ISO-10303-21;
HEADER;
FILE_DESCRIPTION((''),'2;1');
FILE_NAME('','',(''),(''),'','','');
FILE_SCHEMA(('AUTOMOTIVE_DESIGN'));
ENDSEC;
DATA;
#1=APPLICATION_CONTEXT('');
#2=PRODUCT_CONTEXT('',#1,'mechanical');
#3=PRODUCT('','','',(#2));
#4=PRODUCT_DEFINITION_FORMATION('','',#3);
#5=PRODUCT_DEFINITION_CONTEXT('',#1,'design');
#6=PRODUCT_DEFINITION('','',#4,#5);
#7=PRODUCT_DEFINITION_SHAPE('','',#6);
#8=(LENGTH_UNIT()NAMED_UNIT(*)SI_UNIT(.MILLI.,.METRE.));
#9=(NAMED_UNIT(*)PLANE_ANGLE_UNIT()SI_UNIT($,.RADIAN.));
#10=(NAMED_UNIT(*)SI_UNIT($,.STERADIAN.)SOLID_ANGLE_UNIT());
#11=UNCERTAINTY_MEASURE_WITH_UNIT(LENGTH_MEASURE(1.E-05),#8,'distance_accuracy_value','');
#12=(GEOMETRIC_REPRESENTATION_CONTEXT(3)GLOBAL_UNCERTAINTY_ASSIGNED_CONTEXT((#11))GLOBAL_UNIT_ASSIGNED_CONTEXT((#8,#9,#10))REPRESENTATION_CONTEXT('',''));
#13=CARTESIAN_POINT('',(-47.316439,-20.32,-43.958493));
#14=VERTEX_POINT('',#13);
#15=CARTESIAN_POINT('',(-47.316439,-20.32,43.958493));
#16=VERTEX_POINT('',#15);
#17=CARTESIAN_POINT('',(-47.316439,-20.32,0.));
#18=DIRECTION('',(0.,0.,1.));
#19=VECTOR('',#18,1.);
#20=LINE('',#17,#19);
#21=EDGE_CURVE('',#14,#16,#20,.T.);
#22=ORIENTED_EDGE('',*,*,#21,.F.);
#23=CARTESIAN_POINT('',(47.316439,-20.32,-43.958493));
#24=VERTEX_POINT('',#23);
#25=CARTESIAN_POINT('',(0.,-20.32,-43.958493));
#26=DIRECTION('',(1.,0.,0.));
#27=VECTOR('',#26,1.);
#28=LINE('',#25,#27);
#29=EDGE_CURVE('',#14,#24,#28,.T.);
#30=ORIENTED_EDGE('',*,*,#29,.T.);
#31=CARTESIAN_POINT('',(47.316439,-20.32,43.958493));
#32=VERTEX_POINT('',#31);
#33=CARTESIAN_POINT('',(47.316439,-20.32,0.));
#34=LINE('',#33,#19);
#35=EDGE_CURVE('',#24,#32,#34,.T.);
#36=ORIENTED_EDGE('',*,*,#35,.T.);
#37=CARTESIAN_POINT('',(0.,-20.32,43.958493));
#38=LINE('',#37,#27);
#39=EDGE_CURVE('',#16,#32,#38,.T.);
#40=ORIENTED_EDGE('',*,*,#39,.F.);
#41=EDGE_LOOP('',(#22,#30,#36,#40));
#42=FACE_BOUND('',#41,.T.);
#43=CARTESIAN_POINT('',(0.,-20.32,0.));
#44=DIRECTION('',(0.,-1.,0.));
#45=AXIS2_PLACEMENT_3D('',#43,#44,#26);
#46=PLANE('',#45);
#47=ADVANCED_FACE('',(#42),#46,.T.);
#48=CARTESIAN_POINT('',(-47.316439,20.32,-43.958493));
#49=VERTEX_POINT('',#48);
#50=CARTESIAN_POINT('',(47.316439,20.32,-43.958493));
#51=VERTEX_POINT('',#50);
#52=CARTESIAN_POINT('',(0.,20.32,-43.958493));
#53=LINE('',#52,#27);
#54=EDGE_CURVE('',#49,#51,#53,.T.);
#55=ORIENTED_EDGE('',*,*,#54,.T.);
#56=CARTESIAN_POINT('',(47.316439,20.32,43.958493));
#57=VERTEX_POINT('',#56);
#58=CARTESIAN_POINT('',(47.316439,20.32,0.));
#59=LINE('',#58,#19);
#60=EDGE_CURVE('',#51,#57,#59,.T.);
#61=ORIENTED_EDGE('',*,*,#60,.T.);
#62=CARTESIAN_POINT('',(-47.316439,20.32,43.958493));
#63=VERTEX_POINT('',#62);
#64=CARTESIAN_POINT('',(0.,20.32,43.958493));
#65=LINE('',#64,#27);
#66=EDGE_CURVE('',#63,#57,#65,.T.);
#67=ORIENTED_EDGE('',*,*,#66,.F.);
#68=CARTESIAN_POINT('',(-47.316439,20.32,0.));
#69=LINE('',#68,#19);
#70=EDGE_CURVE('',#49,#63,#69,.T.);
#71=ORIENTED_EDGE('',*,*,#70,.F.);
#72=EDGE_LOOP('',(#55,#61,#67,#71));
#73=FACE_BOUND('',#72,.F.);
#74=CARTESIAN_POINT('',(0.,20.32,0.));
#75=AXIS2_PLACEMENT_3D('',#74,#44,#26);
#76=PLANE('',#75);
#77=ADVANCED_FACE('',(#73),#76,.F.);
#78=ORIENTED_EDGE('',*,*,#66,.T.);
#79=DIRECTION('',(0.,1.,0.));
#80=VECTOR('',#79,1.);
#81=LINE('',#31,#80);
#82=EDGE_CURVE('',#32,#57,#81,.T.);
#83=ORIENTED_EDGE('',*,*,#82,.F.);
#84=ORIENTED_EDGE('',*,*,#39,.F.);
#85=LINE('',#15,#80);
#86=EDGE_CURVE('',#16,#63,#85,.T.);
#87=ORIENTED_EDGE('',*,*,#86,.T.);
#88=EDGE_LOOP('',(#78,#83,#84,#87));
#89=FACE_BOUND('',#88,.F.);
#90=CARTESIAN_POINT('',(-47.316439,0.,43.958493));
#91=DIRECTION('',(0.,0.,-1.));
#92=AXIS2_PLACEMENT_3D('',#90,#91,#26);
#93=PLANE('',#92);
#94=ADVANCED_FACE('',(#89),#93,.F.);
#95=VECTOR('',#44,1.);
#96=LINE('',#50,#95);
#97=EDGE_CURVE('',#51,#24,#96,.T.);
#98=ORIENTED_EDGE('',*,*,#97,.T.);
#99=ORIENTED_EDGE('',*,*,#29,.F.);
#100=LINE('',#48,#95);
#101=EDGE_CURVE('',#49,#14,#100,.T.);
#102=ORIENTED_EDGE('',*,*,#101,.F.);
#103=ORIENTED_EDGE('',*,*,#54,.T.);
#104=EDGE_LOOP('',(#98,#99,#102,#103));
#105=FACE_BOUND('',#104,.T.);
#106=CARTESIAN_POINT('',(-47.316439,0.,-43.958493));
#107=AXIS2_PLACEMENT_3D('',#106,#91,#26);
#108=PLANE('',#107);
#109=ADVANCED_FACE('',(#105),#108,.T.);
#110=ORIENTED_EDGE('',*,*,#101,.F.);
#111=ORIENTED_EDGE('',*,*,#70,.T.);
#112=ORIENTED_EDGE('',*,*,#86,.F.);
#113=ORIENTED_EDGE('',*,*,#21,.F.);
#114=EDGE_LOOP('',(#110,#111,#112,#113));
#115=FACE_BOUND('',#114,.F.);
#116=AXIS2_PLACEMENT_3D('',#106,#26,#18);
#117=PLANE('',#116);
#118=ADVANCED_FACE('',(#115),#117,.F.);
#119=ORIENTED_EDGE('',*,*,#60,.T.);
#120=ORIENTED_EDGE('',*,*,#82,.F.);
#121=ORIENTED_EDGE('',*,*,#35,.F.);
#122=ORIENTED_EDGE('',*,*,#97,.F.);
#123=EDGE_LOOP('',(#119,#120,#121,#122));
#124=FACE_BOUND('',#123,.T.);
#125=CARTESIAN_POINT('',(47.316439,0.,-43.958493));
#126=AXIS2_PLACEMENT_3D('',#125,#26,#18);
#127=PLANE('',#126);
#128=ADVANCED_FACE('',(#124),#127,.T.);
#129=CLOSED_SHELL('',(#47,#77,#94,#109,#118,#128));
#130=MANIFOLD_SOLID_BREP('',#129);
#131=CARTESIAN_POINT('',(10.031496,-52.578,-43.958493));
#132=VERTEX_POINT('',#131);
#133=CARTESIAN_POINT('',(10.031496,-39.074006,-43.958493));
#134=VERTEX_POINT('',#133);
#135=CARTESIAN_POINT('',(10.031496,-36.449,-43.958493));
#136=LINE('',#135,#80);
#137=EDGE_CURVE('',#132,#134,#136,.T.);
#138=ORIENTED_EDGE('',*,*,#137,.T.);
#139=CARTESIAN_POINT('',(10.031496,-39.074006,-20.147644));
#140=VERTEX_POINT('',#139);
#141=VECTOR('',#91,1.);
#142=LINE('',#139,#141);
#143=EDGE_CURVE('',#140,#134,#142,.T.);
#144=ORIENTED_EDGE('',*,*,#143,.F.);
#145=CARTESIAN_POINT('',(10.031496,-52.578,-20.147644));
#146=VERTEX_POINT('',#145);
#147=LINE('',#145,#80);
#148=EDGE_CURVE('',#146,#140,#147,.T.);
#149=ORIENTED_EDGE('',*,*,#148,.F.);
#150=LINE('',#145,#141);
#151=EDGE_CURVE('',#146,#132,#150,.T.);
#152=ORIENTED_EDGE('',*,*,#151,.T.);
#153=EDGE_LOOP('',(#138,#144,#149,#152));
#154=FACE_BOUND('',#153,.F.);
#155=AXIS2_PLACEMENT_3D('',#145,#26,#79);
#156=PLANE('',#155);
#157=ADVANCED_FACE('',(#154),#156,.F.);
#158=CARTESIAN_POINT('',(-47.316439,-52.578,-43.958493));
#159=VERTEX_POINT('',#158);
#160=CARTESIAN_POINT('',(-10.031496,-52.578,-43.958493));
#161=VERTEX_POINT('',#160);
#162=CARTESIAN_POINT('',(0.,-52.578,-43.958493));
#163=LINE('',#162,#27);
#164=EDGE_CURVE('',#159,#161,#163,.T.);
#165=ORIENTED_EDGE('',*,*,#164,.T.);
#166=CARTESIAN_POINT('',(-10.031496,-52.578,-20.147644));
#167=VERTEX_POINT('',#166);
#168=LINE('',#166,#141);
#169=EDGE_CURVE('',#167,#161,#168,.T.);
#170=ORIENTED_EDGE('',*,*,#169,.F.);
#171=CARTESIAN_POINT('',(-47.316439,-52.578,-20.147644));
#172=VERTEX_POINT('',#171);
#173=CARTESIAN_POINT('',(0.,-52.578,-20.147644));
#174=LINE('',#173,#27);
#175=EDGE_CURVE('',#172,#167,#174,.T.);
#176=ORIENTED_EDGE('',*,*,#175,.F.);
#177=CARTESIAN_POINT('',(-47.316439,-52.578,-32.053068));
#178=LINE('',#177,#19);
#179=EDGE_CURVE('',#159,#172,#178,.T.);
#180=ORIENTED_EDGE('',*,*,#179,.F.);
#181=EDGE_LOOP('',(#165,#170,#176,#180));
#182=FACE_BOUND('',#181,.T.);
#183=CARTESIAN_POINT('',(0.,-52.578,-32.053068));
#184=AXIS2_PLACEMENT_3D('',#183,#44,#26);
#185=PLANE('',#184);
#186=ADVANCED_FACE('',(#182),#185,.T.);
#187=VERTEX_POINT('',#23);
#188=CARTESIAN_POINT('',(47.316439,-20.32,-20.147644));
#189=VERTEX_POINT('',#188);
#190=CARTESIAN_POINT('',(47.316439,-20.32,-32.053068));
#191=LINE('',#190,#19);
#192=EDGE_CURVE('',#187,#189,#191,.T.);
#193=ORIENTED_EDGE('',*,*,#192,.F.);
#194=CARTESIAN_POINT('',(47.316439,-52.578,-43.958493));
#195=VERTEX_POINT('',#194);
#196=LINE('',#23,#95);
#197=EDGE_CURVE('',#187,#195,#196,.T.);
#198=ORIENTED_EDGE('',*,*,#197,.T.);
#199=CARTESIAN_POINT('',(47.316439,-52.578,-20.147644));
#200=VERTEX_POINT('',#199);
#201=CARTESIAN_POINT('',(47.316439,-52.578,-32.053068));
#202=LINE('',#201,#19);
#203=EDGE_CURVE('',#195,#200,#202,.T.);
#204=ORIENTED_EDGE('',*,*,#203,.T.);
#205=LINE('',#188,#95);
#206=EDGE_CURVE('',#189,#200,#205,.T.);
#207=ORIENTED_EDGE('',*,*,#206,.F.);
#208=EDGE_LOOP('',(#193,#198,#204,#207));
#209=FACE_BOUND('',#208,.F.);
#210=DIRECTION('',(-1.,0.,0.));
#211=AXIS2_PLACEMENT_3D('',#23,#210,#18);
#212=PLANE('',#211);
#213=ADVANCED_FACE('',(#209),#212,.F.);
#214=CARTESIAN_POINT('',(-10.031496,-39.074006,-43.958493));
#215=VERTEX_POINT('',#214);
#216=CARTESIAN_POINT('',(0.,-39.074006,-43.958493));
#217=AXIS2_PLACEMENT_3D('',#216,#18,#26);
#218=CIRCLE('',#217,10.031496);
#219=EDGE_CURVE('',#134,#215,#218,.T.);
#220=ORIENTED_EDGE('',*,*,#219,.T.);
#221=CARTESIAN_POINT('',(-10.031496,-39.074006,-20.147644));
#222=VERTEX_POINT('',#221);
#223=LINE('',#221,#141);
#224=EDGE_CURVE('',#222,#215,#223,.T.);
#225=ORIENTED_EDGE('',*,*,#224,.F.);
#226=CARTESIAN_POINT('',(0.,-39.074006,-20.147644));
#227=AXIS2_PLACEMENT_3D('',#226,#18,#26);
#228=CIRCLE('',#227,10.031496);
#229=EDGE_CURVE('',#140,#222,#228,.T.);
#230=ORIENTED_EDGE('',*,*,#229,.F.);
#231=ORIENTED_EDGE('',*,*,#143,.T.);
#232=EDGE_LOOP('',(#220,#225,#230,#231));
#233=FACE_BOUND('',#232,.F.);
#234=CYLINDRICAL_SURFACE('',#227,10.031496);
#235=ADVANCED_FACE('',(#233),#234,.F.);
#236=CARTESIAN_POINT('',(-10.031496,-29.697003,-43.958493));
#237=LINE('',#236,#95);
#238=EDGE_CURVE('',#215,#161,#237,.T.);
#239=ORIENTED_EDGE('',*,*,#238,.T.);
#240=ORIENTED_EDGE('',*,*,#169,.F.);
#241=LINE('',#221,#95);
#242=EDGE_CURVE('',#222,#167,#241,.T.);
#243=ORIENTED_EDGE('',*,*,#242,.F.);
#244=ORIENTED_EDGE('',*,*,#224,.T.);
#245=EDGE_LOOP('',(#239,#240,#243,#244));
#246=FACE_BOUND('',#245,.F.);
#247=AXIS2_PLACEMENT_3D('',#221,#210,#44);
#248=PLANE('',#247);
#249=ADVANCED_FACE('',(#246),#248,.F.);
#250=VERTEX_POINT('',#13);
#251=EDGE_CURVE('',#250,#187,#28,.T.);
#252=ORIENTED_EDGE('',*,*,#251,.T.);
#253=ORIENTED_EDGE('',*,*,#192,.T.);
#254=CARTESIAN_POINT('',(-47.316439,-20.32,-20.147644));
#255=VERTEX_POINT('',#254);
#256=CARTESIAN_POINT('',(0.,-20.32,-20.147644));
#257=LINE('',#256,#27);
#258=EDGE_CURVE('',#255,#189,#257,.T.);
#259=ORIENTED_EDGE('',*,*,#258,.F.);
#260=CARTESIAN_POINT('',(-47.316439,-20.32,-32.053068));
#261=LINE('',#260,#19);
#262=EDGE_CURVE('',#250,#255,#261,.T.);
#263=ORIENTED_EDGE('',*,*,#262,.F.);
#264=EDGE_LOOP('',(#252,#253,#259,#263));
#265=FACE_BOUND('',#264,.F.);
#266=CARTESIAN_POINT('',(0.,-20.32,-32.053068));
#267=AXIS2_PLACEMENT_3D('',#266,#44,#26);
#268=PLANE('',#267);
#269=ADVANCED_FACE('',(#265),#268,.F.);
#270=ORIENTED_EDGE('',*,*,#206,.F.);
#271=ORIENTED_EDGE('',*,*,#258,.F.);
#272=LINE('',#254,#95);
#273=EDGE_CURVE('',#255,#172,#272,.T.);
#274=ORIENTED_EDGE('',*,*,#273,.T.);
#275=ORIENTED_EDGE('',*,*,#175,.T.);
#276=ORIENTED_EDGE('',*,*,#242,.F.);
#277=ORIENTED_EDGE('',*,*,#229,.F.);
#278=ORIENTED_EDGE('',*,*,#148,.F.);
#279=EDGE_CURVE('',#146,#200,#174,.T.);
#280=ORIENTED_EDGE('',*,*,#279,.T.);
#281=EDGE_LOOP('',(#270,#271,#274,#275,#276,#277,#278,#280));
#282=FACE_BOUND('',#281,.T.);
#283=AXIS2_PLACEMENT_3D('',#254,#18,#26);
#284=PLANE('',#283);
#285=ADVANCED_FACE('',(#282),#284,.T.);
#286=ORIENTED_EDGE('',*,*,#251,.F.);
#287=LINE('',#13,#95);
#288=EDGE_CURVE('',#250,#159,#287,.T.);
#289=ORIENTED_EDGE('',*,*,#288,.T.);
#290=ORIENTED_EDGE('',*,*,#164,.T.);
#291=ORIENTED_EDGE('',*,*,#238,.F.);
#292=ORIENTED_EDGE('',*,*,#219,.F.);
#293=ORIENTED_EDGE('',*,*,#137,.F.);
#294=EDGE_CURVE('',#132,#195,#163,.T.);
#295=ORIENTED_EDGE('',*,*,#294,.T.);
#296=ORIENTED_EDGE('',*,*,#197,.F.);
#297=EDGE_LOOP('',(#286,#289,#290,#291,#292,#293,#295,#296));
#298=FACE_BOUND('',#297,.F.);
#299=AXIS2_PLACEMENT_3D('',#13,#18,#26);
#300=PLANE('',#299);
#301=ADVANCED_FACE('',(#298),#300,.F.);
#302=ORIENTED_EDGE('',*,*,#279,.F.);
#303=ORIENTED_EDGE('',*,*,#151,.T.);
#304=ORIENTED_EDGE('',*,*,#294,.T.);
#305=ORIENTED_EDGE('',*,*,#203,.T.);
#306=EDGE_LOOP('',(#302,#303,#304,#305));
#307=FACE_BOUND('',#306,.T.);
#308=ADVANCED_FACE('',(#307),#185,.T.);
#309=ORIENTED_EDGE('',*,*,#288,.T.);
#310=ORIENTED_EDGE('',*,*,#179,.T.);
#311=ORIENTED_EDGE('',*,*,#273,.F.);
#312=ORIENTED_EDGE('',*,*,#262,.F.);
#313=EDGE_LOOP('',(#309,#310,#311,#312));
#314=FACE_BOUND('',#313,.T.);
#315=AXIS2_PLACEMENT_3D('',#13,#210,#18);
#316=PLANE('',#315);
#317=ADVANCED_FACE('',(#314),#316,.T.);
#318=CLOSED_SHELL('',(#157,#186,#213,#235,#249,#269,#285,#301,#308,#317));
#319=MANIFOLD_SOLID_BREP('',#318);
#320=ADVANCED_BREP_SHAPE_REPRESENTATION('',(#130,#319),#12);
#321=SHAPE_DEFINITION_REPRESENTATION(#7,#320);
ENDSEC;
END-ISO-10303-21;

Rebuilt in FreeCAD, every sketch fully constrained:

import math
import FreeCAD as App
import Part
import Sketcher
from FreeCAD import Vector
Q = App.Units.Quantity


def add_polygon(sketch, points):
    """Adds a closed chain of lines whose ends are joined by coincident constraints."""
    first, n = sketch.GeometryCount, len(points)
    for a, b in zip(points, points[1:] + points[:1]):
        sketch.addGeometry(Part.LineSegment(App.Vector(*a, 0), App.Vector(*b, 0)), False)
    for i in range(n):
        sketch.addConstraint(Sketcher.Constraint("Coincident", first + i, 2, first + (i + 1) % n, 1))

doc = App.newDocument("Part")
body = doc.addObject("PartDesign::Body", "Body")

# Sketch on XZ plane
sketch1 = doc.addObject("Sketcher::SketchObject", "Sketch")
body.addObject(sketch1)
sketch1.AttachmentSupport = (doc.XZ_Plane, [""])
sketch1.MapMode = "FlatFace"
add_polygon(sketch1, [(-47, 44), (-47, -44), (47, -44), (47, 44)])  # lines 0-3
sketch1.addConstraint([
    Sketcher.Constraint("Vertical", 0),
    Sketcher.Constraint("Horizontal", 1),
    Sketcher.Constraint("Vertical", 2),
    Sketcher.Constraint("Horizontal", 3),
    Sketcher.Constraint("Symmetric", 0, 2, 2, 2, -1, 1),
    Sketcher.Constraint("DistanceX", 1, 1, 1, 2, 94.632879),
    Sketcher.Constraint("DistanceY", 0, 2, 0, 1, 87.916985),
])
pad1 = doc.addObject("PartDesign::Pad", "Pad")
body.addObject(pad1)
pad1.Profile = sketch1
pad1.Length = Q("1.6 in")
pad1.Midplane = True
body2 = doc.addObject("PartDesign::Body", "Body001")

# Sketch on XZ plane
sketch2 = doc.addObject("Sketcher::SketchObject", "Sketch001")
body2.addObject(sketch2)
sketch2.AttachmentSupport = (doc.getObject("XZ_Plane001"), [""])
sketch2.MapMode = "FlatFace"
sketch2.AttachmentOffset = App.Placement(Vector(0, 0, 0.8 * 25.4), App.Rotation())
add_polygon(sketch2, [(-47, -20), (-47, -44), (47, -44), (47, -20)])  # lines 0-3
sketch2.addConstraint([
    Sketcher.Constraint("Vertical", 0),
    Sketcher.Constraint("Horizontal", 1),
    Sketcher.Constraint("Vertical", 2),
    Sketcher.Constraint("Horizontal", 3),
    Sketcher.Constraint("DistanceX", 1, 1, 1, 2, 94.632879),
    Sketcher.Constraint("DistanceY", 0, 2, 0, 1, 23.810849),
    Sketcher.Constraint("DistanceX", 0, 2, -1, 1, 47.316439),
    Sketcher.Constraint("DistanceY", 0, 2, -1, 1, 43.958493),
])
pad2 = doc.addObject("PartDesign::Pad", "Pad001")
body2.addObject(pad2)
pad2.Profile = sketch2
pad2.Length = Q("1.27 in")

# Sketch on XY plane
sketch3 = doc.addObject("Sketcher::SketchObject", "Sketch002")
body2.addObject(sketch3)
sketch3.AttachmentSupport = (doc.getObject("XY_Plane001"), [""])
sketch3.MapMode = "FlatFace"
sketch3.AttachmentOffset = App.Placement(Vector(0, 0, -20.147644), App.Rotation())
sketch3.addGeometry([
    Part.ArcOfCircle(Part.Circle(Vector(0, -39, 0), Vector(0, 0, 1), 10), math.radians(0), math.radians(180)),
    Part.LineSegment(Vector(-10, -39, 0), Vector(-10, -53, 0)),
    Part.LineSegment(Vector(-10, -53, 0), Vector(10, -53, 0)),
    Part.LineSegment(Vector(10, -53, 0), Vector(10, -39, 0)),
], False)
sketch3.addConstraint([
    Sketcher.Constraint("Tangent", 0, 2, 1, 1),
    Sketcher.Constraint("Coincident", 1, 2, 2, 1),
    Sketcher.Constraint("Coincident", 2, 2, 3, 1),
    Sketcher.Constraint("Tangent", 3, 2, 0, 1),
    Sketcher.Constraint("Vertical", 1),
    Sketcher.Constraint("Horizontal", 2),
    Sketcher.Constraint("Vertical", 3),
    Sketcher.Constraint("PointOnObject", 0, 3, -2),
    Sketcher.Constraint("DistanceY", 1, 2, -1, 1, Q("2.07 in")),
    Sketcher.Constraint("Radius", 0, 10.031496),
    Sketcher.Constraint("DistanceY", 1, 2, 1, 1, 13.503994),
])
pocket1 = doc.addObject("PartDesign::Pocket", "Pocket")
body2.addObject(pocket1)
pocket1.Profile = sketch3
pocket1.Type = "ThroughAll"

doc.recompute()
